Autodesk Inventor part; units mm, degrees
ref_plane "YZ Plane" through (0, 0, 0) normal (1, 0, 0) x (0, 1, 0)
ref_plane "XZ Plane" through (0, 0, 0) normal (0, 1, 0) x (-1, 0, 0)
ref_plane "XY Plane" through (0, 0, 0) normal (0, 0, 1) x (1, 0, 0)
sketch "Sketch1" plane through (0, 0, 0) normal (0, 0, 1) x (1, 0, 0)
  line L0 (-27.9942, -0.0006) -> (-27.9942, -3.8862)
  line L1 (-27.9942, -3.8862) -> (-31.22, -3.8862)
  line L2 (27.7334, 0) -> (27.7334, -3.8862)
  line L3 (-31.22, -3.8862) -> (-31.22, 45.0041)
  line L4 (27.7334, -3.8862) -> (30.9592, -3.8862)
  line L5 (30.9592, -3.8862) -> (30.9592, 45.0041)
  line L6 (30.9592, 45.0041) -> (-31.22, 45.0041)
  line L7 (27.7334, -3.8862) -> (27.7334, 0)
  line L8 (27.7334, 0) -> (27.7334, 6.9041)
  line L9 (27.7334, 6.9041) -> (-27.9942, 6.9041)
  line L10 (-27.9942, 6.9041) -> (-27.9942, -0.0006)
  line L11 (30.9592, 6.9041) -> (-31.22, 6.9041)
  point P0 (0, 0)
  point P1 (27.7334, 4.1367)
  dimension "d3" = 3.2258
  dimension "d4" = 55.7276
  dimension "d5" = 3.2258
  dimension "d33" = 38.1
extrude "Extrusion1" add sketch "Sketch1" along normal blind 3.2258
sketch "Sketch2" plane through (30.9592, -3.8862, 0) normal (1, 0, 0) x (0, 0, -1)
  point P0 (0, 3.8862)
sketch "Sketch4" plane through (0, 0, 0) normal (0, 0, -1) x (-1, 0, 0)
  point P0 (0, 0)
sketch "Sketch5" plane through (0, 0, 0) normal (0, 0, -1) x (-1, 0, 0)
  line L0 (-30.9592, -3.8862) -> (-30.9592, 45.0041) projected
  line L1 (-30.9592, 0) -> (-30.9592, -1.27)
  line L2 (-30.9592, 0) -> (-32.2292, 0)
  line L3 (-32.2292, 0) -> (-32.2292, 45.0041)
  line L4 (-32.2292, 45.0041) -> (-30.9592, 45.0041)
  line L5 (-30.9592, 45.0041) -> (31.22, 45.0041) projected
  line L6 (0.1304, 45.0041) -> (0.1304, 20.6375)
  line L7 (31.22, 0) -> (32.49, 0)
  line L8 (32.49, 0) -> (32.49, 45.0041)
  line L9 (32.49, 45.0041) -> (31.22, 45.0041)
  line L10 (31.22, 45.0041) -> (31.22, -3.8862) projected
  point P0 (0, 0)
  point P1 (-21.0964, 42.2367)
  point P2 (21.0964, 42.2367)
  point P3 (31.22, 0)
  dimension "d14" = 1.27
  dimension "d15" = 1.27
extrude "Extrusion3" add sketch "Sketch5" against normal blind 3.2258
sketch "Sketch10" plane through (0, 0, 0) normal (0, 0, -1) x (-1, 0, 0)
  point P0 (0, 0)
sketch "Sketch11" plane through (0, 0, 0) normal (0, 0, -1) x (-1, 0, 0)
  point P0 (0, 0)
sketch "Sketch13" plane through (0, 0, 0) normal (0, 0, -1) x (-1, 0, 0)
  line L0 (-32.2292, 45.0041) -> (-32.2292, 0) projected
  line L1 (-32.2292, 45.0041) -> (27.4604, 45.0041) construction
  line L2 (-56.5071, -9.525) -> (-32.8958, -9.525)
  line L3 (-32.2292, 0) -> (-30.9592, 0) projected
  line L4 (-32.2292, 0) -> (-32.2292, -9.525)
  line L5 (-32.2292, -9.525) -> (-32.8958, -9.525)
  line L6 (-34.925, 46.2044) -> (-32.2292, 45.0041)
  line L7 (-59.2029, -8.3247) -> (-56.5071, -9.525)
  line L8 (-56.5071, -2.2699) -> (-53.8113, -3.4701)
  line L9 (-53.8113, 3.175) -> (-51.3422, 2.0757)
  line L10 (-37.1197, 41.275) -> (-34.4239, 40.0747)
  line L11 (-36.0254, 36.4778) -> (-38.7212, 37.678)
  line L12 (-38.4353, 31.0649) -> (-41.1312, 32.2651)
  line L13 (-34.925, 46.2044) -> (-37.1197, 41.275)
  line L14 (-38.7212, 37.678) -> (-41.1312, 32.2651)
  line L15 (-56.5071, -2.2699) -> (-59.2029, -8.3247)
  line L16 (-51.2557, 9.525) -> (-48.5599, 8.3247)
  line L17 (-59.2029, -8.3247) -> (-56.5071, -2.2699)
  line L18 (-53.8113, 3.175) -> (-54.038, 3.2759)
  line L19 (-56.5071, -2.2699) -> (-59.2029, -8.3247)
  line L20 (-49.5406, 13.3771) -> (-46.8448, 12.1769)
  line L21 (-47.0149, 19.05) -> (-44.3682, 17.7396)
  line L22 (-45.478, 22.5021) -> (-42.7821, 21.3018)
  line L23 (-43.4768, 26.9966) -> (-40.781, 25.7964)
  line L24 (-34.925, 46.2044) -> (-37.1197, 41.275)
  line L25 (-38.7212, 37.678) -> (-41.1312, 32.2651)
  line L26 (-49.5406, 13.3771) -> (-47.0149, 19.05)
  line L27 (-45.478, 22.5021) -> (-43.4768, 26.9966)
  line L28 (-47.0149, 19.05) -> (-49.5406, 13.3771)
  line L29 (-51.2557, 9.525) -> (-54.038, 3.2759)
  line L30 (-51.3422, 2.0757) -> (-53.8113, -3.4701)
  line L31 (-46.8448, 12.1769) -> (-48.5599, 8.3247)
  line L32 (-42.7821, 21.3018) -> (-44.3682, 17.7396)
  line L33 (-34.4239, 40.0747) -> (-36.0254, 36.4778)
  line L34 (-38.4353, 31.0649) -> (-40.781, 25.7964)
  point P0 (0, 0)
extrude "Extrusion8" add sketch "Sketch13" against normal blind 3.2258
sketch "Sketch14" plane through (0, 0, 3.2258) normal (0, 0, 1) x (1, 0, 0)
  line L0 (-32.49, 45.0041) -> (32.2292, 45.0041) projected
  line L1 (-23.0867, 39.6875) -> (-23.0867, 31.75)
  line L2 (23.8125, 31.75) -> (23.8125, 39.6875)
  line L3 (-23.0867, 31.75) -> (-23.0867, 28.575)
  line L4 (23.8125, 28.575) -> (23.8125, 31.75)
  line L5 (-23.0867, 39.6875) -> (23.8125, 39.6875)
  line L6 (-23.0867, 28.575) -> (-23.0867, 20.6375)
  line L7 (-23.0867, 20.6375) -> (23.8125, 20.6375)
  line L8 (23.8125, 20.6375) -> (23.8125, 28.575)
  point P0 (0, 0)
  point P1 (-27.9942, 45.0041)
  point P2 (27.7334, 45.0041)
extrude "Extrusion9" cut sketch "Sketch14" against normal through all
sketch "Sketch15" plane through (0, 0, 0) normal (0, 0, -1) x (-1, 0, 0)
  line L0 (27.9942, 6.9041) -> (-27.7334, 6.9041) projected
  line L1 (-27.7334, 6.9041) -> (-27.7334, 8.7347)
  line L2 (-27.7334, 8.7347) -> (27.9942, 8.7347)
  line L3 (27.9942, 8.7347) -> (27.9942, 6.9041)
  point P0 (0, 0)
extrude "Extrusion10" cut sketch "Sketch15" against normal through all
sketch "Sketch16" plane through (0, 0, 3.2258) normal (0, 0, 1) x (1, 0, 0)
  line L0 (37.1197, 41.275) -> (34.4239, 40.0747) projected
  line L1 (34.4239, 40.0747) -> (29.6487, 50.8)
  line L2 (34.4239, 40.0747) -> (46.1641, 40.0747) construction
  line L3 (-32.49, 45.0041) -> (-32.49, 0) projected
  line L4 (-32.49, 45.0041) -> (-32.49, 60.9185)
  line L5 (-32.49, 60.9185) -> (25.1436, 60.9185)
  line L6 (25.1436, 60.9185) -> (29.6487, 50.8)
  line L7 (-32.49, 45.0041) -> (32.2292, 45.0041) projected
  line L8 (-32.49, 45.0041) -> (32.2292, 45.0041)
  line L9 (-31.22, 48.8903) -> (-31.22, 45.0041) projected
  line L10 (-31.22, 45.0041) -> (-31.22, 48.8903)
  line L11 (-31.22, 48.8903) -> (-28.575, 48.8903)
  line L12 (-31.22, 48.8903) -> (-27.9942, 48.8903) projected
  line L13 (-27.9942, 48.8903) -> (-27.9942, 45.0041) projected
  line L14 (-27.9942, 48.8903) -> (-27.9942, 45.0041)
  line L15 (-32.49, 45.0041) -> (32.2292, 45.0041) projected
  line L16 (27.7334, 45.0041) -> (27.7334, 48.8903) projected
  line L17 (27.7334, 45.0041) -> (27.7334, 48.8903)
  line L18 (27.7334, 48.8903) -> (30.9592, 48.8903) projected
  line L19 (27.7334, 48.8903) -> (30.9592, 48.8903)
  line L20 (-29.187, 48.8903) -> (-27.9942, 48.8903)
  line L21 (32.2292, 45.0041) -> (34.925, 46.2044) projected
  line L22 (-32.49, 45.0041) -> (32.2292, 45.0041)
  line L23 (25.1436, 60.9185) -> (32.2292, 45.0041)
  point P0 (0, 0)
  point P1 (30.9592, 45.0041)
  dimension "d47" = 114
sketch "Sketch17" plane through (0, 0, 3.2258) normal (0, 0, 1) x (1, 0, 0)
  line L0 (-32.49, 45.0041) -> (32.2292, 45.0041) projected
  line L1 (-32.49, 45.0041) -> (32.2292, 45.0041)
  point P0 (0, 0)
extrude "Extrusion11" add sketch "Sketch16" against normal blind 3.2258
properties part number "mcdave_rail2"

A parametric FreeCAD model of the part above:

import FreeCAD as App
import Part
import Sketcher

V = App.Vector
Q = App.Units.Quantity

doc = App.newDocument("Part")
body = doc.addObject("PartDesign::Body", "Body")

# Sketch on XY plane
sketch1 = doc.addObject("Sketcher::SketchObject", "Sketch")
body.addObject(sketch1)
sketch1.AttachmentSupport = (doc.XY_Plane, [""])
sketch1.MapMode = "FlatFace"
sketch1.addGeometry([
    Part.LineSegment(V(-28, -3.9, 0), V(-28, 6.9, 0)),  # 0
    Part.LineSegment(V(-28, 6.9, 0), V(27.7, 6.9, 0)),  # 1
    Part.LineSegment(V(27.7, 6.9, 0), V(27.7, -3.9, 0)),  # 2
    Part.LineSegment(V(27.7, -3.9, 0), V(31, -3.9, 0)),  # 3
    Part.LineSegment(V(31, -3.9, 0), V(31, 45, 0)),  # 4
    Part.LineSegment(V(31, 45, 0), V(-31.2, 45, 0)),  # 5
    Part.LineSegment(V(-31.2, 45, 0), V(-31.2, -3.9, 0)),  # 6
    Part.LineSegment(V(-31.2, -3.9, 0), V(-28, -3.9, 0)),  # 7
], False)
sketch1.addConstraint([
    Sketcher.Constraint("Coincident", 0, 2, 1, 1),
    Sketcher.Constraint("Coincident", 1, 2, 2, 1),
    Sketcher.Constraint("Coincident", 2, 2, 3, 1),
    Sketcher.Constraint("Coincident", 3, 2, 4, 1),
    Sketcher.Constraint("Coincident", 4, 2, 5, 1),
    Sketcher.Constraint("Coincident", 5, 2, 6, 1),
    Sketcher.Constraint("Coincident", 6, 2, 7, 1),
    Sketcher.Constraint("Coincident", 7, 2, 0, 1),
    Sketcher.Constraint("Vertical", 0),
    Sketcher.Constraint("Horizontal", 1),
    Sketcher.Constraint("Vertical", 2),
    Sketcher.Constraint("Horizontal", 3),
    Sketcher.Constraint("Vertical", 4),
    Sketcher.Constraint("Horizontal", 5),
    Sketcher.Constraint("Vertical", 6),
    Sketcher.Constraint("Horizontal", 7),
    Sketcher.Constraint("Horizontal", 3, 2, 6, 2),
    Sketcher.Constraint("Equal", 3, 7),
    Sketcher.Constraint("DistanceY", 1, 2, 4, 2, Q("1.5 in")),
    Sketcher.Constraint("DistanceX", 1, 1, 1, 2, Q("2.194 in")),
    Sketcher.Constraint("DistanceX", 3, 1, 3, 2, Q("0.127 in")),
    Sketcher.Constraint("DistanceY", 2, 2, -1, 1, Q("0.153 in")),
    Sketcher.Constraint("DistanceY", 0, 1, 0, 2, 10.7903),
    Sketcher.Constraint("DistanceX", 0, 2, -1, 1, 27.9942),
])
pad1 = doc.addObject("PartDesign::Pad", "Pad")
body.addObject(pad1)
pad1.Profile = sketch1
pad1.Length = Q("0.127 in")

# Sketch on XY plane
sketch2 = doc.addObject("Sketcher::SketchObject", "Sketch001")
body.addObject(sketch2)
sketch2.AttachmentSupport = (doc.XY_Plane, [""])
sketch2.MapMode = "FlatFace"
sketch2.addGeometry([
    Part.LineSegment(V(32.2, 0, 0), V(31, 0, 0)),  # 0
    Part.LineSegment(V(31, 0, 0), V(31, 45, 0)),  # 1
    Part.LineSegment(V(31, 45, 0), V(32.2, 45, 0)),  # 2
    Part.LineSegment(V(32.2, 45, 0), V(32.2, 0, 0)),  # 3
    Part.LineSegment(V(-32.5, 45, 0), V(-31.2, 45, 0)),  # 4
    Part.LineSegment(V(-31.2, 45, 0), V(-31.2, 0, 0)),  # 5
    Part.LineSegment(V(-31.2, 0, 0), V(-32.5, 0, 0)),  # 6
    Part.LineSegment(V(-32.5, 0, 0), V(-32.5, 45, 0)),  # 7
], False)
sketch2.addConstraint([
    Sketcher.Constraint("Coincident", 0, 2, 1, 1),
    Sketcher.Constraint("Coincident", 1, 2, 2, 1),
    Sketcher.Constraint("Coincident", 2, 2, 3, 1),
    Sketcher.Constraint("Coincident", 3, 2, 0, 1),
    Sketcher.Constraint("Coincident", 4, 2, 5, 1),
    Sketcher.Constraint("Coincident", 5, 2, 6, 1),
    Sketcher.Constraint("Coincident", 6, 2, 7, 1),
    Sketcher.Constraint("Coincident", 7, 2, 4, 1),
    Sketcher.Constraint("Horizontal", 0),
    Sketcher.Constraint("Vertical", 1),
    Sketcher.Constraint("Horizontal", 2),
    Sketcher.Constraint("Vertical", 3),
    Sketcher.Constraint("Horizontal", 4),
    Sketcher.Constraint("Vertical", 5),
    Sketcher.Constraint("Horizontal", 6),
    Sketcher.Constraint("Vertical", 7),
    Sketcher.Constraint("PointOnObject", 0, 2, -1),
    Sketcher.Constraint("PointOnObject", 5, 2, -1),
    Sketcher.Constraint("Horizontal", 2, 2, 4, 2),
    Sketcher.Constraint("Equal", 2, 4),
    Sketcher.Constraint("DistanceX", 0, 2, 0, 1, Q("0.05 in")),
    Sketcher.Constraint("DistanceX", 4, 2, 1, 2, Q("2.448 in")),
    Sketcher.Constraint("DistanceY", 1, 1, 1, 2, Q("1.771811 in")),
    Sketcher.Constraint("DistanceX", -1, 1, 0, 2, 30.9592),
])
pad2 = doc.addObject("PartDesign::Pad", "Pad001")
body.addObject(pad2)
pad2.Profile = sketch2
pad2.Length = Q("0.127 in")

# Sketch on XY plane
sketch3 = doc.addObject("Sketcher::SketchObject", "Sketch002")
body.addObject(sketch3)
sketch3.AttachmentSupport = (doc.XY_Plane, [""])
sketch3.MapMode = "FlatFace"
sketch3.addGeometry([
    Part.LineSegment(V(32.23, -9.53, 0), V(32.23, 45, 0)),  # 0
    Part.LineSegment(V(32.23, 45, 0), V(34.92, 46.2, 0)),  # 1
    Part.LineSegment(V(34.92, 46.2, 0), V(37.12, 41.27, 0)),  # 2
    Part.LineSegment(V(37.12, 41.27, 0), V(34.42, 40.07, 0)),  # 3
    Part.LineSegment(V(34.42, 40.07, 0), V(36.03, 36.48, 0)),  # 4
    Part.LineSegment(V(36.03, 36.48, 0), V(38.72, 37.68, 0)),  # 5
    Part.LineSegment(V(38.72, 37.68, 0), V(41.13, 32.27, 0)),  # 6
    Part.LineSegment(V(41.13, 32.27, 0), V(38.44, 31.06, 0)),  # 7
    Part.LineSegment(V(38.44, 31.06, 0), V(40.78, 25.8, 0)),  # 8
    Part.LineSegment(V(40.78, 25.8, 0), V(43.48, 27, 0)),  # 9
    Part.LineSegment(V(43.48, 27, 0), V(45.48, 22.5, 0)),  # 10
    Part.LineSegment(V(45.48, 22.5, 0), V(42.78, 21.3, 0)),  # 11
    Part.LineSegment(V(42.78, 21.3, 0), V(44.37, 17.74, 0)),  # 12
    Part.LineSegment(V(44.37, 17.74, 0), V(47.01, 19.05, 0)),  # 13
    Part.LineSegment(V(47.01, 19.05, 0), V(49.54, 13.38, 0)),  # 14
    Part.LineSegment(V(49.54, 13.38, 0), V(46.84, 12.18, 0)),  # 15
    Part.LineSegment(V(46.84, 12.18, 0), V(48.56, 8.32, 0)),  # 16
    Part.LineSegment(V(48.56, 8.32, 0), V(51.26, 9.53, 0)),  # 17
    Part.LineSegment(V(51.26, 9.53, 0), V(54.04, 3.28, 0)),  # 18
    Part.LineSegment(V(54.04, 3.28, 0), V(53.81, 3.17, 0)),  # 19
    Part.LineSegment(V(53.81, 3.17, 0), V(51.34, 2.08, 0)),  # 20
    Part.LineSegment(V(51.34, 2.08, 0), V(53.81, -3.47, 0)),  # 21
    Part.LineSegment(V(53.81, -3.47, 0), V(56.51, -2.27, 0)),  # 22
    Part.LineSegment(V(56.51, -2.27, 0), V(59.2, -8.32, 0)),  # 23
    Part.LineSegment(V(59.2, -8.32, 0), V(56.51, -9.53, 0)),  # 24
    Part.LineSegment(V(56.51, -9.53, 0), V(32.23, -9.53, 0)),  # 25
], False)
sketch3.addConstraint([
    Sketcher.Constraint("Coincident", 0, 2, 1, 1),
    Sketcher.Constraint("Coincident", 1, 2, 2, 1),
    Sketcher.Constraint("Coincident", 2, 2, 3, 1),
    Sketcher.Constraint("Coincident", 3, 2, 4, 1),
    Sketcher.Constraint("Coincident", 4, 2, 5, 1),
    Sketcher.Constraint("Coincident", 5, 2, 6, 1),
    Sketcher.Constraint("Coincident", 6, 2, 7, 1),
    Sketcher.Constraint("Coincident", 7, 2, 8, 1),
    Sketcher.Constraint("Coincident", 8, 2, 9, 1),
    Sketcher.Constraint("Coincident", 9, 2, 10, 1),
    Sketcher.Constraint("Coincident", 10, 2, 11, 1),
    Sketcher.Constraint("Coincident", 11, 2, 12, 1),
    Sketcher.Constraint("Coincident", 12, 2, 13, 1),
    Sketcher.Constraint("Coincident", 13, 2, 14, 1),
    Sketcher.Constraint("Coincident", 14, 2, 15, 1),
    Sketcher.Constraint("Coincident", 15, 2, 16, 1),
    Sketcher.Constraint("Coincident", 16, 2, 17, 1),
    Sketcher.Constraint("Coincident", 17, 2, 18, 1),
    Sketcher.Constraint("Coincident", 18, 2, 19, 1),
    Sketcher.Constraint("Coincident", 19, 2, 20, 1),
    Sketcher.Constraint("Coincident", 20, 2, 21, 1),
    Sketcher.Constraint("Coincident", 21, 2, 22, 1),
    Sketcher.Constraint("Coincident", 22, 2, 23, 1),
    Sketcher.Constraint("Coincident", 23, 2, 24, 1),
    Sketcher.Constraint("Coincident", 24, 2, 25, 1),
    Sketcher.Constraint("Coincident", 25, 2, 0, 1),
    Sketcher.Constraint("Vertical", 0),
    Sketcher.Constraint("Horizontal", 25),
    Sketcher.Constraint("Perpendicular", 1, 2),
    Sketcher.Constraint("Perpendicular", 2, 3),
    Sketcher.Constraint("Perpendicular", 3, 4),
    Sketcher.Constraint("Perpendicular", 4, 5),
    Sketcher.Constraint("Perpendicular", 5, 6),
    Sketcher.Constraint("Perpendicular", 6, 7),
    Sketcher.Constraint("Perpendicular", 7, 8),
    Sketcher.Constraint("Perpendicular", 8, 9),
    Sketcher.Constraint("Perpendicular", 9, 10),
    Sketcher.Constraint("Perpendicular", 10, 11),
    Sketcher.Constraint("Perpendicular", 11, 12),
    Sketcher.Constraint("Parallel", 12, 14),
    Sketcher.Constraint("Perpendicular", 14, 15),
    Sketcher.Constraint("Perpendicular", 15, 16),
    Sketcher.Constraint("Perpendicular", 16, 17),
    Sketcher.Constraint("Perpendicular", 17, 18),
    Sketcher.Constraint("Perpendicular", 18, 19),
    Sketcher.Constraint("Parallel", 19, 20),
    Sketcher.Constraint("Perpendicular", 20, 21),
    Sketcher.Constraint("Perpendicular", 21, 22),
    Sketcher.Constraint("Perpendicular", 22, 23),
    Sketcher.Constraint("Perpendicular", 23, 24),
    Sketcher.Constraint("Vertical", 19, 2, 21, 2),
    Sketcher.Constraint("Vertical", 22, 2, 24, 2),
    Sketcher.Constraint("Equal", 1, 3),
    Sketcher.Constraint("Equal", 3, 5),
    Sketcher.Constraint("Equal", 5, 7),
    Sketcher.Constraint("Equal", 7, 9),
    Sketcher.Constraint("Equal", 9, 11),
    Sketcher.Constraint("Equal", 11, 15),
    Sketcher.Constraint("Equal", 15, 17),
    Sketcher.Constraint("Equal", 17, 22),
    Sketcher.Constraint("Equal", 22, 24),
    Sketcher.Constraint("Angle", 1, Q("24.001 deg")),
    Sketcher.Constraint("DistanceY", 24, 2, 19, 2, Q("0.5 in")),
    Sketcher.Constraint("DistanceY", -1, 1, 13, 2, Q("0.75 in")),
    Sketcher.Constraint("Angle", 13, Q("26.3403 deg")),
    Sketcher.Constraint("DistanceY", 19, 2, 17, 2, Q("0.25 in")),
    Sketcher.Constraint("Distance", 21, Q("0.239 in")),
    Sketcher.Constraint("DistanceX", -1, 1, 1, 2, Q("1.375 in")),
    Sketcher.Constraint("DistanceY", -1, 1, 2, 2, Q("1.625 in")),
    Sketcher.Constraint("DistanceY", -1, 1, 17, 2, Q("0.375 in")),
    Sketcher.Constraint("DistanceX", 6, 2, 11, 2, Q("0.065 in")),
    Sketcher.Constraint("DistanceY", 12, 2, 10, 2, Q("0.1875 in")),
    Sketcher.Constraint("DistanceY", 14, 2, 11, 2, Q("0.312 in")),
    Sketcher.Constraint("Distance", 10, Q("0.1937 in")),
    Sketcher.Constraint("Distance", 18, Q("0.2693 in")),
    Sketcher.Constraint("DistanceX", 25, 2, 25, 1, 24.278),
    Sketcher.Constraint("DistanceY", 0, 1, 0, 2, Q("2.146811 in")),
    Sketcher.Constraint("DistanceY", 4, 2, 3, 2, Q("0.1416 in")),
])
pad3 = doc.addObject("PartDesign::Pad", "Pad002")
body.addObject(pad3)
pad3.Profile = sketch3
pad3.Length = Q("0.127 in")

# Sketch on XY plane
sketch4 = doc.addObject("Sketcher::SketchObject", "Sketch003")
body.addObject(sketch4)
sketch4.AttachmentSupport = (doc.XY_Plane, [""])
sketch4.MapMode = "FlatFace"
sketch4.AttachmentOffset = App.Placement(V(0, 0, 0.127 * 25.4), App.Rotation())
sketch4.addGeometry([
    Part.LineSegment(V(24, 40, 0), V(-23, 40, 0)),
    Part.LineSegment(V(-23, 40, 0), V(-23, 21, 0)),
    Part.LineSegment(V(-23, 21, 0), V(24, 21, 0)),
    Part.LineSegment(V(24, 21, 0), V(24, 40, 0)),
], False)
sketch4.addConstraint([
    Sketcher.Constraint("Coincident", 0, 2, 1, 1),
    Sketcher.Constraint("Coincident", 1, 2, 2, 1),
    Sketcher.Constraint("Coincident", 2, 2, 3, 1),
    Sketcher.Constraint("Coincident", 3, 2, 0, 1),
    Sketcher.Constraint("Horizontal", 0),
    Sketcher.Constraint("Vertical", 1),
    Sketcher.Constraint("Horizontal", 2),
    Sketcher.Constraint("Vertical", 3),
    Sketcher.Constraint("DistanceY", 1, 2, 1, 1, Q("0.75 in")),
    Sketcher.Constraint("DistanceY", -1, 1, 0, 2, Q("1.5625 in")),
    Sketcher.Constraint("DistanceX", -1, 1, 2, 2, Q("0.9375 in")),
    Sketcher.Constraint("DistanceX", 0, 2, 0, 1, 46.8992),
])
pocket1 = doc.addObject("PartDesign::Pocket", "Pocket")
body.addObject(pocket1)
pocket1.Profile = sketch4
pocket1.Type = "ThroughAll"

# Sketch on XY plane
sketch5 = doc.addObject("Sketcher::SketchObject", "Sketch004")
body.addObject(sketch5)
sketch5.AttachmentSupport = (doc.XY_Plane, [""])
sketch5.MapMode = "FlatFace"
sketch5.addGeometry([
    Part.LineSegment(V(27.7, 6.9, 0), V(-28, 6.9, 0)),
    Part.LineSegment(V(-28, 6.9, 0), V(-28, 8.7, 0)),
    Part.LineSegment(V(-28, 8.7, 0), V(27.7, 8.7, 0)),
    Part.LineSegment(V(27.7, 8.7, 0), V(27.7, 6.9, 0)),
], False)
sketch5.addConstraint([
    Sketcher.Constraint("Coincident", 0, 2, 1, 1),
    Sketcher.Constraint("Coincident", 1, 2, 2, 1),
    Sketcher.Constraint("Coincident", 2, 2, 3, 1),
    Sketcher.Constraint("Coincident", 3, 2, 0, 1),
    Sketcher.Constraint("Horizontal", 0),
    Sketcher.Constraint("Vertical", 1),
    Sketcher.Constraint("Horizontal", 2),
    Sketcher.Constraint("Vertical", 3),
    Sketcher.Constraint("DistanceX", 0, 2, 0, 1, Q("2.194 in")),
    Sketcher.Constraint("DistanceY", 1, 1, 1, 2, 1.8306),
    Sketcher.Constraint("DistanceX", 0, 2, -1, 1, 27.9942),
    Sketcher.Constraint("DistanceY", -1, 1, 0, 2, Q("0.271811 in")),
])
pocket2 = doc.addObject("PartDesign::Pocket", "Pocket001")
body.addObject(pocket2)
pocket2.Profile = sketch5
pocket2.Type = "ThroughAll"
pocket2.Reversed = True

# Sketch on XY plane
sketch6 = doc.addObject("Sketcher::SketchObject", "Sketch005")
body.addObject(sketch6)
sketch6.AttachmentSupport = (doc.XY_Plane, [""])
sketch6.MapMode = "FlatFace"
sketch6.AttachmentOffset = App.Placement(V(0, 0, 0.127 * 25.4), App.Rotation())
sketch6.addGeometry([
    Part.LineSegment(V(32, 45, 0), V(30, 51, 0)),  # 0
    Part.LineSegment(V(30, 51, 0), V(25, 61, 0)),  # 1
    Part.LineSegment(V(25, 61, 0), V(-32, 61, 0)),  # 2
    Part.LineSegment(V(-32, 61, 0), V(-32, 45, 0)),  # 3
    Part.LineSegment(V(-32, 45, 0), V(32, 45, 0)),  # 4
], False)
sketch6.addConstraint([
    Sketcher.Constraint("Coincident", 0, 2, 1, 1),
    Sketcher.Constraint("Coincident", 1, 2, 2, 1),
    Sketcher.Constraint("Coincident", 2, 2, 3, 1),
    Sketcher.Constraint("Coincident", 3, 2, 4, 1),
    Sketcher.Constraint("Coincident", 4, 2, 0, 1),
    Sketcher.Constraint("Horizontal", 2),
    Sketcher.Constraint("Vertical", 3),
    Sketcher.Constraint("Horizontal", 4),
    Sketcher.Constraint("Parallel", 0, 1),
    Sketcher.Constraint("Angle", 0, Q("114 deg")),
    Sketcher.Constraint("DistanceY", -1, 1, 0, 2, Q("2 in")),
    Sketcher.Constraint("DistanceX", 4, 1, 4, 2, Q("2.548 in")),
    Sketcher.Constraint("DistanceX", 2, 2, 2, 1, 57.6336),
    Sketcher.Constraint("DistanceX", -1, 1, 1, 2, Q("0.9899 in")),
    Sketcher.Constraint("DistanceX", 2, 2, 0, 2, Q("2.4464 in")),
])
pad4 = doc.addObject("PartDesign::Pad", "Pad003")
body.addObject(pad4)
pad4.Profile = sketch6
pad4.Length = Q("0.127 in")
pad4.Reversed = True

doc.recompute()
